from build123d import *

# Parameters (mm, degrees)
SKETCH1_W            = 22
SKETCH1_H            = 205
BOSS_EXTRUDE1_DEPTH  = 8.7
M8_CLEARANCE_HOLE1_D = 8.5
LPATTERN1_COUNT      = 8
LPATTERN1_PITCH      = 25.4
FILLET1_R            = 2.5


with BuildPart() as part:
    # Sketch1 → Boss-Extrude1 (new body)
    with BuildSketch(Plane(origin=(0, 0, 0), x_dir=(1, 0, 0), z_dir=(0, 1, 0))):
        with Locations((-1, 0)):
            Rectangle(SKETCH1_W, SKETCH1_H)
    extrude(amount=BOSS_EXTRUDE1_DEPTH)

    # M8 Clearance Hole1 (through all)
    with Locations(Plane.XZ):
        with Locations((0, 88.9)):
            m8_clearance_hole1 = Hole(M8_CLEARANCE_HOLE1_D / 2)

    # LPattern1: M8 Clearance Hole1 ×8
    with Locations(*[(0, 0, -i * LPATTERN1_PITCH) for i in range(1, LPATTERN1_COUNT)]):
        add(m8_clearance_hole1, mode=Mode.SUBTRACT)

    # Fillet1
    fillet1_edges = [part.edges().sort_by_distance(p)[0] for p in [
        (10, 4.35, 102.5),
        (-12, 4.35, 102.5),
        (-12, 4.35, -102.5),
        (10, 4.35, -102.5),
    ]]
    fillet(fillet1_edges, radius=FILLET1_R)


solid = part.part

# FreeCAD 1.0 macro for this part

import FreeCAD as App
import Part
import Sketcher
Q = App.Units.Quantity


def edges_at(feature, points):
    """Names of the edges that pass closest to the given points."""
    edges = feature.Shape.Edges
    near = lambda p: min(range(len(edges)), key=lambda i: edges[i].distToShape(Part.Vertex(*p))[0])
    return sorted({f"Edge{near(p) + 1}" for p in points})


def add_polygon(sketch, points):
    """Adds a closed chain of lines whose ends are joined by coincident constraints."""
    first, n = sketch.GeometryCount, len(points)
    for a, b in zip(points, points[1:] + points[:1]):
        sketch.addGeometry(Part.LineSegment(App.Vector(*a, 0), App.Vector(*b, 0)), False)
    for i in range(n):
        sketch.addConstraint(Sketcher.Constraint("Coincident", first + i, 2, first + (i + 1) % n, 1))

doc = App.newDocument("Part")
body = doc.addObject("PartDesign::Body", "Body")

sketch1 = body.newObject("Sketcher::SketchObject", "Sketch")
sketch1.AttachmentSupport = (doc.getObject("XZ_Plane"), [""])
sketch1.MapMode = "FlatFace"
add_polygon(sketch1, [(-12, -102.5), (-12, 102.5), (10, 102.5), (10, -102.5)])
sketch1.addConstraint([
    Sketcher.Constraint("Vertical", 0),
    Sketcher.Constraint("Horizontal", 1),
    Sketcher.Constraint("Vertical", 2),
    Sketcher.Constraint("Horizontal", 3),
    Sketcher.Constraint("DistanceX", 1, 1, 1, 2, Q("22 mm")),
    Sketcher.Constraint("DistanceY", 0, 1, 0, 2, Q("205 mm")),
    Sketcher.Constraint("DistanceX", 0, 2, -1, 1, Q("12 mm")),
    Sketcher.Constraint("DistanceY", -1, 1, 0, 2, Q("102.5 mm")),
])
pad1 = body.newObject("PartDesign::Pad", "Pad")
pad1.Profile = sketch1
pad1.Length = 8.7
pad1.Reversed = True

sketch2 = body.newObject("Sketcher::SketchObject", "Sketch001")
sketch2.AttachmentSupport = (doc.getObject("XZ_Plane"), [""])
sketch2.MapMode = "FlatFace"
sketch2.addGeometry(Part.Circle(App.Vector(0, 88.9, 0), App.Vector(0, 0, 1), 4.25), False)
sketch2.addConstraint([
    Sketcher.Constraint("PointOnObject", 0, 3, -2),
    Sketcher.Constraint("Diameter", 0, Q("8.5 mm")),
    Sketcher.Constraint("DistanceY", -1, 1, 0, 3, Q("88.9 mm")),
])
doc.recompute()
hole = body.newObject("PartDesign::Hole", "Hole")
hole.Profile = sketch2
hole.ThreadType = "None"
hole.Diameter = 8.5
hole.DepthType = "ThroughAll"
doc.recompute()

linearpattern = body.newObject("PartDesign::LinearPattern", "LinearPattern")
linearpattern.Originals = [hole]
linearpattern.Direction = (doc.getObject("Z_Axis"), [""])
linearpattern.Mode = "offset"
linearpattern.Offset = 25.4
linearpattern.Occurrences = 8
linearpattern.Reversed = True
body.Tip = linearpattern
doc.recompute()

fillet = body.newObject("PartDesign::Fillet", "Fillet")
fillet.Base = (linearpattern, edges_at(linearpattern, [
    (10, 4.35, 102.5),
    (-12, 4.35, 102.5),
    (-12, 4.35, -102.5),
    (10, 4.35, -102.5),
]))
fillet.Radius = 2.5

doc.recompute()
